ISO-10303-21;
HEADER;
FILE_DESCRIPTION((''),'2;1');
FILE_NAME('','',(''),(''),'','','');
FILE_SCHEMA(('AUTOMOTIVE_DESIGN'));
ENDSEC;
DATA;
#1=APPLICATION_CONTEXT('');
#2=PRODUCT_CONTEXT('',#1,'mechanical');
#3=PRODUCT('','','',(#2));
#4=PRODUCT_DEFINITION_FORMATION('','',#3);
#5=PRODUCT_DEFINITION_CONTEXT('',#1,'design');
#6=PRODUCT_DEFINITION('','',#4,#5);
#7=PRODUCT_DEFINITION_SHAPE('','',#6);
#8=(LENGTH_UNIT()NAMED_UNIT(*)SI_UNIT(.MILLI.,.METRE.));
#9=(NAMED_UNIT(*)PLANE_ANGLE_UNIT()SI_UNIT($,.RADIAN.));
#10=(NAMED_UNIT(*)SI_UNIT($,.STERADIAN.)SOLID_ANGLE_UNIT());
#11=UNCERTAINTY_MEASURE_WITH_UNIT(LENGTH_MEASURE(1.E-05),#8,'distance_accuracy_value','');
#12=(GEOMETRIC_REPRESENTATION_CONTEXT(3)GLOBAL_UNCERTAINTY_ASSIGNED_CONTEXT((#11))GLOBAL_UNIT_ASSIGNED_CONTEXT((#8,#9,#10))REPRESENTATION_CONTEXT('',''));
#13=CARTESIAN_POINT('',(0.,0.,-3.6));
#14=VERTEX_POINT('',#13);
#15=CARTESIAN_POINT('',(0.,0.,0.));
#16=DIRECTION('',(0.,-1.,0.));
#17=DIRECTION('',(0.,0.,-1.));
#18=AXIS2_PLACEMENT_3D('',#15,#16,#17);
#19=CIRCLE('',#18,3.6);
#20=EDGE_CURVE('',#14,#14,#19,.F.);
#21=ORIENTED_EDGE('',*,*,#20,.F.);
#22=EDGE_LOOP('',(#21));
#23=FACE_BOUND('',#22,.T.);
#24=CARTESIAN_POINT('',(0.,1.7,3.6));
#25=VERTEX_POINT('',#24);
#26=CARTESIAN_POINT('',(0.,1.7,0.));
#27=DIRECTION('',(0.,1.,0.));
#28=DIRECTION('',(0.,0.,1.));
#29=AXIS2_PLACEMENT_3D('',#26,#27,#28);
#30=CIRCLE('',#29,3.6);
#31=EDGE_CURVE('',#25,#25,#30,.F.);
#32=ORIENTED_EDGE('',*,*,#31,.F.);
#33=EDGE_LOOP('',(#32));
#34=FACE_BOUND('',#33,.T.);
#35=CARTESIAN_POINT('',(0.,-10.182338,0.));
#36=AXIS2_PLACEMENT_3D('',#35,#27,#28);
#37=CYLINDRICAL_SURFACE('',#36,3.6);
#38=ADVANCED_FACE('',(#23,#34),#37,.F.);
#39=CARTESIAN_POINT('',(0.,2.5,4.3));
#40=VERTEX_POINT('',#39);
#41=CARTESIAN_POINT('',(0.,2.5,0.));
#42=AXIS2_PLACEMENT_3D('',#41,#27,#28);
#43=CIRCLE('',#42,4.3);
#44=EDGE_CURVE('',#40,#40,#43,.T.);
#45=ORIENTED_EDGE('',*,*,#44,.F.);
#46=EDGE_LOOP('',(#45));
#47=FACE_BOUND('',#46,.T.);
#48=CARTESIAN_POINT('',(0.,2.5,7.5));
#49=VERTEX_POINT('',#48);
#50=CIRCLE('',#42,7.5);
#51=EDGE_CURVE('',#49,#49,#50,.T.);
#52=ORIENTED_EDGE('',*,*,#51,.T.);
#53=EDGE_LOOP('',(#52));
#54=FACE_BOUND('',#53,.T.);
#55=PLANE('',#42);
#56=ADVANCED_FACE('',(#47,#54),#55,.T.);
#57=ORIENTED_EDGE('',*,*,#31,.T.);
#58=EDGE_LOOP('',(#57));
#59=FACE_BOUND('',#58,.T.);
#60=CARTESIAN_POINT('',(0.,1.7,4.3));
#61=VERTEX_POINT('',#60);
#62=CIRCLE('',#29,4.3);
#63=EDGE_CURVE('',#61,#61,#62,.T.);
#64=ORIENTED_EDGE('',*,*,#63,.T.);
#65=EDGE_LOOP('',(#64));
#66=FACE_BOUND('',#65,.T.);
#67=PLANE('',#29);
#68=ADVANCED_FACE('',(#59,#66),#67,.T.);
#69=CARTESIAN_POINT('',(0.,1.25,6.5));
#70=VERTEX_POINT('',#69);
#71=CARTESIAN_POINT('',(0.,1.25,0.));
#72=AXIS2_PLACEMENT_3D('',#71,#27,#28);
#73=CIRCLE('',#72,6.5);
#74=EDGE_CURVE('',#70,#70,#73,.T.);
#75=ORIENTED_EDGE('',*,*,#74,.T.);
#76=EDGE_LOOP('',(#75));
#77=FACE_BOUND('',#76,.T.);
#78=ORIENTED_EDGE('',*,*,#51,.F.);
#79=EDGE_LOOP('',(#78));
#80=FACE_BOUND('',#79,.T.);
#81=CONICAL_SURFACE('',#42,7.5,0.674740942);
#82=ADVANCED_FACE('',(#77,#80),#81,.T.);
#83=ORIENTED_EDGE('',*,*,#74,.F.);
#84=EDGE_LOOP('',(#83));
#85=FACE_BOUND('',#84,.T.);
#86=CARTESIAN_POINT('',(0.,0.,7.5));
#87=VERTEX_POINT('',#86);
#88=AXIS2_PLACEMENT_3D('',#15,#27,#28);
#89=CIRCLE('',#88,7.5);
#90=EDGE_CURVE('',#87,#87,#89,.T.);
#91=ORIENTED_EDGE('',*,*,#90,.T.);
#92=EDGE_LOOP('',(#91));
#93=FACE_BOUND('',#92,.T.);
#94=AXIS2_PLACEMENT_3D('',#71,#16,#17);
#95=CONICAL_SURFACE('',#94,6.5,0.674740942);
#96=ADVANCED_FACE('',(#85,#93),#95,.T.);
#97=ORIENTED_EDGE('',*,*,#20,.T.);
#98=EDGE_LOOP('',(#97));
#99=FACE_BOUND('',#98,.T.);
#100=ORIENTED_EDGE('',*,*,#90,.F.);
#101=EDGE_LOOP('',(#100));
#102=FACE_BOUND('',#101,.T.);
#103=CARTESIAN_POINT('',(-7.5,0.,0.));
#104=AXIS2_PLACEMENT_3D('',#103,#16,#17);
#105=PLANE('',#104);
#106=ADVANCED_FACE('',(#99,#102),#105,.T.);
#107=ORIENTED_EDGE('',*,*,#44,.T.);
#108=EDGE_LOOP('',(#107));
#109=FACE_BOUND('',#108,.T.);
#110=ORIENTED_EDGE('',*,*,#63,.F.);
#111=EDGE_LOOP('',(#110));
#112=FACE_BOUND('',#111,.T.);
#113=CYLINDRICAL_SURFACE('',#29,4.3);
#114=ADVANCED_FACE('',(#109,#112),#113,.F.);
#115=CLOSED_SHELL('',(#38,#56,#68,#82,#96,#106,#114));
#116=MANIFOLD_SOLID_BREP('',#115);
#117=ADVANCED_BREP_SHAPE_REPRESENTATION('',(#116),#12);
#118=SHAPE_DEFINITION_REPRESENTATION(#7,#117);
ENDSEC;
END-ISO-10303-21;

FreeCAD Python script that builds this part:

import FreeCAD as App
import Part
import Sketcher

V = App.Vector
Q = App.Units.Quantity

doc = App.newDocument("Part")
body = doc.addObject("PartDesign::Body", "Body")

# Sketch on XY plane
sketch1 = doc.addObject("Sketcher::SketchObject", "Sketch")
body.addObject(sketch1)
sketch1.AttachmentSupport = (doc.XY_Plane, [""])
sketch1.MapMode = "FlatFace"
sketch1.addGeometry(Part.LineSegment(V(0, 0, 0), V(0, 2.5, 0)), False)
sketch1.addGeometry(Part.LineSegment(V(0, 2.5, 0), V(-7.5, 2.5, 0)), False)
sketch1.addGeometry(Part.LineSegment(V(-7.5, 2.5, 0), V(-6.5, 1.2, 0)), False)
sketch1.addGeometry(Part.LineSegment(V(-6.5, 1.2, 0), V(-7.5, 0, 0)), False)
sketch1.addGeometry(Part.LineSegment(V(-7.5, 0, 0), V(0, 0, 0)), False)
sketch1.addConstraint(Sketcher.Constraint("Coincident", 0, 2, 1, 1))
sketch1.addConstraint(Sketcher.Constraint("Coincident", 1, 2, 2, 1))
sketch1.addConstraint(Sketcher.Constraint("Coincident", 2, 2, 3, 1))
sketch1.addConstraint(Sketcher.Constraint("Coincident", 3, 2, 4, 1))
sketch1.addConstraint(Sketcher.Constraint("Coincident", 4, 2, 0, 1))
sketch1.addConstraint(Sketcher.Constraint("Vertical", 0))
sketch1.addConstraint(Sketcher.Constraint("Horizontal", 1))
sketch1.addConstraint(Sketcher.Constraint("Horizontal", 4))
sketch1.addConstraint(Sketcher.Constraint("Coincident", 4, 2, -1, 1))
sketch1.addConstraint(Sketcher.Constraint("Vertical", 1, 2, 3, 2))
sketch1.addConstraint(Sketcher.Constraint("Equal", 2, 3))
sketch1.addConstraint(Sketcher.Constraint("DistanceX", 1, 2, 1, 1, Q("7.5 mm")))
sketch1.addConstraint(Sketcher.Constraint("DistanceY", 0, 1, 0, 2, Q("2.5 mm")))
sketch1.addConstraint(Sketcher.Constraint("DistanceX", 1, 2, 2, 2, Q("1 mm")))
revolution = doc.addObject("PartDesign::Revolution", "Revolution")
body.addObject(revolution)
revolution.Profile = sketch1
revolution.ReferenceAxis = (sketch1, ["V_Axis"])
revolution.Angle = 360

# Sketch on XZ plane
sketch2 = doc.addObject("Sketcher::SketchObject", "Sketch001")
body.addObject(sketch2)
sketch2.AttachmentSupport = (doc.XZ_Plane, [""])
sketch2.MapMode = "FlatFace"
sketch2.AttachmentOffset = App.Placement(V(0, 0, -2.5), App.Rotation())
sketch2.addGeometry(Part.Circle(V(0, 0, 0), V(0, 0, 1), 2), False)
sketch2.addConstraint(Sketcher.Constraint("Coincident", 0, 3, -1, 1))
sketch2.addConstraint(Sketcher.Constraint("Diameter", 0, Q("4 mm")))
pocket1 = doc.addObject("PartDesign::Pocket", "Pocket")
body.addObject(pocket1)
pocket1.Profile = sketch2
pocket1.Length = 2.5
pocket1.Reversed = True

# Sketch on XZ plane
sketch3 = doc.addObject("Sketcher::SketchObject", "Sketch002")
body.addObject(sketch3)
sketch3.AttachmentSupport = (doc.XZ_Plane, [""])
sketch3.MapMode = "FlatFace"
sketch3.AttachmentOffset = App.Placement(V(0, 0, -2.5), App.Rotation())
sketch3.addGeometry(Part.Circle(V(0, 0, 0), V(0, 0, 1), 3.6), False)
sketch3.addConstraint(Sketcher.Constraint("Coincident", 0, 3, -1, 1))
sketch3.addConstraint(Sketcher.Constraint("Diameter", 0, Q("7.2 mm")))
pocket2 = doc.addObject("PartDesign::Pocket", "Pocket001")
body.addObject(pocket2)
pocket2.Profile = sketch3
pocket2.Length = 2.5
pocket2.Reversed = True

# Sketch on XZ plane
sketch4 = doc.addObject("Sketcher::SketchObject", "Sketch003")
body.addObject(sketch4)
sketch4.AttachmentSupport = (doc.XZ_Plane, [""])
sketch4.MapMode = "FlatFace"
sketch4.AttachmentOffset = App.Placement(V(0, 0, -2.5), App.Rotation())
sketch4.addGeometry(Part.Circle(V(0, 0, 0), V(0, 0, 1), 4.3), False)
sketch4.addConstraint(Sketcher.Constraint("Coincident", 0, 3, -1, 1))
sketch4.addConstraint(Sketcher.Constraint("Diameter", 0, Q("8.6 mm")))
pocket3 = doc.addObject("PartDesign::Pocket", "Pocket002")
body.addObject(pocket3)
pocket3.Profile = sketch4
pocket3.Length = 0.8
pocket3.Reversed = True

doc.recompute()
